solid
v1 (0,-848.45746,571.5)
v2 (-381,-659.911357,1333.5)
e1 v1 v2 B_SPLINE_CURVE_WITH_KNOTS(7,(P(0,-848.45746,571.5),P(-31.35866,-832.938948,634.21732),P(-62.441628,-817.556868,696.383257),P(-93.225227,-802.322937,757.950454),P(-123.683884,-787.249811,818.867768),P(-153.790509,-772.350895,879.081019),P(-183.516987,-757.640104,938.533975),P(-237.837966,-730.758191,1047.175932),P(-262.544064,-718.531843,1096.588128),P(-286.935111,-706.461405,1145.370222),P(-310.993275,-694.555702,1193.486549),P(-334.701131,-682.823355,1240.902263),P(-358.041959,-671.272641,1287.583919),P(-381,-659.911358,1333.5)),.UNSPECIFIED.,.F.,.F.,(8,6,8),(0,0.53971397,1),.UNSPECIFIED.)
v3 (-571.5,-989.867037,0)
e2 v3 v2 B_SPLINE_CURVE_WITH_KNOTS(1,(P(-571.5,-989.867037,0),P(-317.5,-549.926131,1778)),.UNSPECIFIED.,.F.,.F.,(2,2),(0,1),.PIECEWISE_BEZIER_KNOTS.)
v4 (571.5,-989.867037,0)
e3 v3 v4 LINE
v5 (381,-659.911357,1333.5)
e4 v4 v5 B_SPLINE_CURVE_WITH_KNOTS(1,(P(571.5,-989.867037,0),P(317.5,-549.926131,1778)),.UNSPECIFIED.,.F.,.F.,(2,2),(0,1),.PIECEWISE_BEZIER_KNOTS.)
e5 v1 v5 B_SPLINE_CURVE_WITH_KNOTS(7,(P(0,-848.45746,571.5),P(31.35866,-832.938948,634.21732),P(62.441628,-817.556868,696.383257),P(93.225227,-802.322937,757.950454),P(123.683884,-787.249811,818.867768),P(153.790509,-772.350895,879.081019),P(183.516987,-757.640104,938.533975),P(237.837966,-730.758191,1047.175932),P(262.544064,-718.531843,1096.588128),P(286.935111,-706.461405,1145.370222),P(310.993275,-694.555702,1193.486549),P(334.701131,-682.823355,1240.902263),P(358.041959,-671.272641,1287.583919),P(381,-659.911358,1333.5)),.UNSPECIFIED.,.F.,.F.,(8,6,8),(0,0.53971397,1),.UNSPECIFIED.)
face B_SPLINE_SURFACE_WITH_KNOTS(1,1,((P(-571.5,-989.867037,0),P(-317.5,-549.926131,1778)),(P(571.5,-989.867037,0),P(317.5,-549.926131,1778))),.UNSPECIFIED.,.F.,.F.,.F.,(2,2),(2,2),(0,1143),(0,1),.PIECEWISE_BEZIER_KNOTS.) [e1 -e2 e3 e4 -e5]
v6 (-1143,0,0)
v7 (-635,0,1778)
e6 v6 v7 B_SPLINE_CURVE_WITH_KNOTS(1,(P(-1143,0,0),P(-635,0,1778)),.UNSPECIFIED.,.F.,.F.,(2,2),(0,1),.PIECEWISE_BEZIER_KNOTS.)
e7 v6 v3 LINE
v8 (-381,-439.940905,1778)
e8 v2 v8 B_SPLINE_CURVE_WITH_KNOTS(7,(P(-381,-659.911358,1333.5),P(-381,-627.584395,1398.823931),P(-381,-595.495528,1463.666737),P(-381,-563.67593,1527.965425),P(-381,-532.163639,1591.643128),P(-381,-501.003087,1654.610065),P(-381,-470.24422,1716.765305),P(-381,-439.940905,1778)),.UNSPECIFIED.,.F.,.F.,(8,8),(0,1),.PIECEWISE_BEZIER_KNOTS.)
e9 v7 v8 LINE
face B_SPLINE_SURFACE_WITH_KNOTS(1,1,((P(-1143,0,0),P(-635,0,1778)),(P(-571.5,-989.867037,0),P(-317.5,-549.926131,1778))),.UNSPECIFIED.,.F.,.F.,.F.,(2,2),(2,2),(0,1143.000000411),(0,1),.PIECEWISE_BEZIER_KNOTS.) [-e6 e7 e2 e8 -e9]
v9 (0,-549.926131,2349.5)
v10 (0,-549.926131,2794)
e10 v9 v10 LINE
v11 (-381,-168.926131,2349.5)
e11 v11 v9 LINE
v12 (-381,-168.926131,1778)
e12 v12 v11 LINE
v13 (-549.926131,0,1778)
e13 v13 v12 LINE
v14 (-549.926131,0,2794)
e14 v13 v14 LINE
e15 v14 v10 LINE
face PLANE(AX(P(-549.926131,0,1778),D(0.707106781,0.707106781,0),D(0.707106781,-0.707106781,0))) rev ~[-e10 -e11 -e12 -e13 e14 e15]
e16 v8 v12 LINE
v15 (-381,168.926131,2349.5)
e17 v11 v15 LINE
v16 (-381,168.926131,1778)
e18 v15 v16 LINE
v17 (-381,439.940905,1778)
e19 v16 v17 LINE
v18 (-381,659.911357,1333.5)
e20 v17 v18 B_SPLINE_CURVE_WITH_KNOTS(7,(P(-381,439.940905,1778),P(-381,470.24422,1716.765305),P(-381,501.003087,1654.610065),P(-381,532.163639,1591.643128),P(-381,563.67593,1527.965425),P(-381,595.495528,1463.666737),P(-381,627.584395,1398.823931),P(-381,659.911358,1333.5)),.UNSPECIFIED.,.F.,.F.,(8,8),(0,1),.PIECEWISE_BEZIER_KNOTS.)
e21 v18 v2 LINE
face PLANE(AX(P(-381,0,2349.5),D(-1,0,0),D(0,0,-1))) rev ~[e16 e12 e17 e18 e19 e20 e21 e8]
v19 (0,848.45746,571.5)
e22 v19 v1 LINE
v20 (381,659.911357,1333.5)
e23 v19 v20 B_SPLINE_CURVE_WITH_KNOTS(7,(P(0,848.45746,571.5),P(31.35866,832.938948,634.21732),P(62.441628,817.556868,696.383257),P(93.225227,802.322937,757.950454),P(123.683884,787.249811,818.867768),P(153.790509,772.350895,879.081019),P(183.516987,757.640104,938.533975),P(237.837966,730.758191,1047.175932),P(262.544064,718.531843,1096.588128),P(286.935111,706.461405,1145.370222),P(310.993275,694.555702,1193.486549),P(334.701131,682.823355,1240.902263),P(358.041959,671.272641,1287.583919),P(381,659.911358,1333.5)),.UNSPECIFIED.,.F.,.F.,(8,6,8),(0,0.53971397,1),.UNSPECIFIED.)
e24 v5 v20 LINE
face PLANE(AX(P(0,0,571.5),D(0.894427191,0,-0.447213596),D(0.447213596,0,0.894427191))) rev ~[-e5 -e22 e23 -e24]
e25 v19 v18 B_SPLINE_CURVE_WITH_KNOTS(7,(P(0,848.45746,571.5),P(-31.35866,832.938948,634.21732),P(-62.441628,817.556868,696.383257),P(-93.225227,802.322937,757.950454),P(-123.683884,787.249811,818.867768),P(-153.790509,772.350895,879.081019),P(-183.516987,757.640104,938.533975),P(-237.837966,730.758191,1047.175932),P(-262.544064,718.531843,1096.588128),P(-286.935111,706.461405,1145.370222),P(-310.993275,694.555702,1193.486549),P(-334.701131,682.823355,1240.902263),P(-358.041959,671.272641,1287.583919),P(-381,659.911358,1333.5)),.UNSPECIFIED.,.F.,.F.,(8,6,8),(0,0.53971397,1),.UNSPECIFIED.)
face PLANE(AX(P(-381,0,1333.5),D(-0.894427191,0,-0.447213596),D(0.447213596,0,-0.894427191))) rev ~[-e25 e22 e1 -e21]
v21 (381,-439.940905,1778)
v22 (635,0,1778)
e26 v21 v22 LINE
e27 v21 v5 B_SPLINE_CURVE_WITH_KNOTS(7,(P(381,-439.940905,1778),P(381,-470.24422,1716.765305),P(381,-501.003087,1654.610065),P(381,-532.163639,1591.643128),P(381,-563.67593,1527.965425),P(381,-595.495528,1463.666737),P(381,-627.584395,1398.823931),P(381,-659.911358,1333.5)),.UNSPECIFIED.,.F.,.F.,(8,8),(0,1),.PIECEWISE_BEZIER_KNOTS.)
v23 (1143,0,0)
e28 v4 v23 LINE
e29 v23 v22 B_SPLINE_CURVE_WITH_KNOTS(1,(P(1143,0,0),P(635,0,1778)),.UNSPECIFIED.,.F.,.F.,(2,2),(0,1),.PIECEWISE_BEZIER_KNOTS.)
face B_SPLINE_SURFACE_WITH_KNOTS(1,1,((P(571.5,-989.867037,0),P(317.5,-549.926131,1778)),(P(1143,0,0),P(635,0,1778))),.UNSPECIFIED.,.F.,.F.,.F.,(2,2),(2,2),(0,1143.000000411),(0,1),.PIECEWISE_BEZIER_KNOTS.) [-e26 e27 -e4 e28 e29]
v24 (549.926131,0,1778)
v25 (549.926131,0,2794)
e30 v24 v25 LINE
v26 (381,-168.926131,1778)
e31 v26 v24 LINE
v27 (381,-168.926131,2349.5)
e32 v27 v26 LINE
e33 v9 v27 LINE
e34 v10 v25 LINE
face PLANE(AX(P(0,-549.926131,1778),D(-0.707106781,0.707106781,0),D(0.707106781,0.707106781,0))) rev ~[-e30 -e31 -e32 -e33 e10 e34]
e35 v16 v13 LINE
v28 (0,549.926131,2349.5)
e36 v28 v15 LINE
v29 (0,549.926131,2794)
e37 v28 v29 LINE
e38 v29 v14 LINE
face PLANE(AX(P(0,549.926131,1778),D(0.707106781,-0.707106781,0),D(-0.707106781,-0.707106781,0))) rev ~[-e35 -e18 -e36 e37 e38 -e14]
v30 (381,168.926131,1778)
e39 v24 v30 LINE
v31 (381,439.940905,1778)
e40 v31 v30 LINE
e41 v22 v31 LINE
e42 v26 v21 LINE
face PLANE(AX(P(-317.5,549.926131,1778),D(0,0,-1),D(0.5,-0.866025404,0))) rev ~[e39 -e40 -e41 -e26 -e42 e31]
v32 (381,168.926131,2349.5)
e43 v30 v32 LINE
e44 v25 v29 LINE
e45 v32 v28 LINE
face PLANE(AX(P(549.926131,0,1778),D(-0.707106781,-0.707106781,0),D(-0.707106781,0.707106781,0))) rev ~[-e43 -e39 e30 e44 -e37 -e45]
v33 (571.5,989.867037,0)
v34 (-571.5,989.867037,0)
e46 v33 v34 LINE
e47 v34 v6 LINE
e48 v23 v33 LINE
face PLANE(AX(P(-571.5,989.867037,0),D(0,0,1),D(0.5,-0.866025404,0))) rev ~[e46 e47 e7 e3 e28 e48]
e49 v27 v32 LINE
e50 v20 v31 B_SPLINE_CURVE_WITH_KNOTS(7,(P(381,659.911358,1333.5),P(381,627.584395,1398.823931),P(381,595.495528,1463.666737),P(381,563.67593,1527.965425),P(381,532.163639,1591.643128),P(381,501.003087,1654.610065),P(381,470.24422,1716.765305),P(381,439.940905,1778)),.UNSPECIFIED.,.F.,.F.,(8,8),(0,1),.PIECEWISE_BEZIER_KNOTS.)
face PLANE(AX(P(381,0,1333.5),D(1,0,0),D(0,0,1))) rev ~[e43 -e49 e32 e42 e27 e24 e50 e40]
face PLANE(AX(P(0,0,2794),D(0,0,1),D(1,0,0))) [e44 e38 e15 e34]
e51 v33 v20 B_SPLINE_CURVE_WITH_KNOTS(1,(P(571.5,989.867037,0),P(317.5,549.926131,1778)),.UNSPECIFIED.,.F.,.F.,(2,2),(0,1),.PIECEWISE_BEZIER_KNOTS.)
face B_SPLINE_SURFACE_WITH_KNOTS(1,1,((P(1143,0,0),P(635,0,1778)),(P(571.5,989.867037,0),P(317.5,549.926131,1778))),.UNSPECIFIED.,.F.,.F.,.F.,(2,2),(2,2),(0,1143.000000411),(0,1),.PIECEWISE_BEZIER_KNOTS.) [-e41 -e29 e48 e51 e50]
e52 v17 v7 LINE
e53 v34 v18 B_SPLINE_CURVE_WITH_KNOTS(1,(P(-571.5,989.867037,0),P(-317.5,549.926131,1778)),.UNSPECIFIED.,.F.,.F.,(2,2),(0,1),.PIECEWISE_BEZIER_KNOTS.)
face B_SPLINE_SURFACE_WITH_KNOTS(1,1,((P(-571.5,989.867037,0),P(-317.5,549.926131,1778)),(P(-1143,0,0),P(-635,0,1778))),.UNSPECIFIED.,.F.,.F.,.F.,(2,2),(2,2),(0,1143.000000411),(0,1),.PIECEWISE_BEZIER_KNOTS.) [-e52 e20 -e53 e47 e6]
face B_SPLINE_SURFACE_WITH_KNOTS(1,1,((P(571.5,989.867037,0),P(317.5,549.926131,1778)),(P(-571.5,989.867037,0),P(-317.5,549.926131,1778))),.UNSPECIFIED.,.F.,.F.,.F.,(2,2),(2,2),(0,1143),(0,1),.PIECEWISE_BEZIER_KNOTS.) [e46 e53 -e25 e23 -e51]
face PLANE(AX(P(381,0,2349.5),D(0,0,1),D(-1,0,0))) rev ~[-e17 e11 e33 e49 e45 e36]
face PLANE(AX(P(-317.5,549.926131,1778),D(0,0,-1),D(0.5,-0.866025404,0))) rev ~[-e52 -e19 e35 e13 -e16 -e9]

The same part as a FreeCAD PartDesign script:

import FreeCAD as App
import Part
import Sketcher

V = App.Vector
Q = App.Units.Quantity


def add_polygon(sketch, points):
    """Adds a closed chain of lines whose ends are joined by coincident constraints."""
    first, n = sketch.GeometryCount, len(points)
    for a, b in zip(points, points[1:] + points[:1]):
        sketch.addGeometry(Part.LineSegment(App.Vector(*a, 0), App.Vector(*b, 0)), False)
    for i in range(n):
        sketch.addConstraint(Sketcher.Constraint("Coincident", first + i, 2, first + (i + 1) % n, 1))

doc = App.newDocument("Part")
body = doc.addObject("PartDesign::Body", "Body")

# Sketch on XY plane
sketch1 = doc.addObject("Sketcher::SketchObject", "Sketch")
body.addObject(sketch1)
sketch1.AttachmentSupport = (doc.XY_Plane, [""])
sketch1.MapMode = "FlatFace"
add_polygon(sketch1, [(-572, 990), (-1143, 0), (-572, -990), (572, -990), (1143, 0), (572, 990)])  # lines 0-5
sketch1.addConstraint([
    Sketcher.Constraint("Horizontal", 2),
    Sketcher.Constraint("Horizontal", 5),
    Sketcher.Constraint("Symmetric", 0, 2, 3, 2, -1, 1),
    Sketcher.Constraint("Symmetric", 1, 2, 4, 2, -1, 1),
    Sketcher.Constraint("PointOnObject", 0, 2, -1),
    Sketcher.Constraint("Parallel", 0, 3),
    Sketcher.Constraint("Vertical", 2, 2, 4, 2),
    Sketcher.Constraint("DistanceX", 2, 1, 2, 2, Q("45 in")),
    Sketcher.Constraint("Distance", 0, Q("45 in")),
    Sketcher.Constraint("DistanceX", 0, 2, -1, 1, Q("45 in")),
])

# Sketch on XY plane
sketch2 = doc.addObject("Sketcher::SketchObject", "Sketch001")
body.addObject(sketch2)
sketch2.AttachmentSupport = (doc.XY_Plane, [""])
sketch2.MapMode = "FlatFace"
sketch2.AttachmentOffset = App.Placement(V(0, 0, 70 * 25.4), App.Rotation())
add_polygon(sketch2, [(318, -550), (635, 0), (318, 550), (-318, 550), (-635, 0), (-318, -550)])  # lines 0-5
sketch2.addConstraint([
    Sketcher.Constraint("Horizontal", 2),
    Sketcher.Constraint("Horizontal", 5),
    Sketcher.Constraint("Symmetric", 0, 2, 3, 2, -1, 1),
    Sketcher.Constraint("Symmetric", 1, 2, 4, 2, -1, 1),
    Sketcher.Constraint("PointOnObject", 0, 2, -1),
    Sketcher.Constraint("Parallel", 0, 3),
    Sketcher.Constraint("Vertical", 2, 2, 4, 2),
    Sketcher.Constraint("DistanceX", 2, 2, 2, 1, Q("25 in")),
    Sketcher.Constraint("Distance", 0, Q("25 in")),
    Sketcher.Constraint("DistanceX", -1, 1, 0, 2, Q("25 in")),
])

additiveloft = doc.addObject("PartDesign::AdditiveLoft", "AdditiveLoft")
body.addObject(additiveloft)
additiveloft.Profile = sketch1
additiveloft.Sections = [sketch2]

# Sketch on XY plane
sketch3 = doc.addObject("Sketcher::SketchObject", "Sketch002")
body.addObject(sketch3)
sketch3.AttachmentSupport = (doc.XY_Plane, [""])
sketch3.MapMode = "FlatFace"
sketch3.AttachmentOffset = App.Placement(V(0, 0, 70 * 25.4), App.Rotation())
add_polygon(sketch3, [(0, -550), (550, 0), (0, 550), (-550, 0)])  # lines 0-3
sketch3.addConstraint([
    Sketcher.Constraint("Symmetric", 0, 2, 2, 2, -1, 1),
    Sketcher.Constraint("Symmetric", 1, 2, 3, 2, -1, 1),
    Sketcher.Constraint("PointOnObject", 0, 2, -1),
    Sketcher.Constraint("PointOnObject", 1, 2, -2),
    Sketcher.Constraint("Perpendicular", 0, 1),
    Sketcher.Constraint("DistanceX", -1, 1, 0, 2, 549.926131),
])
pad1 = doc.addObject("PartDesign::Pad", "Pad")
body.addObject(pad1)
pad1.Profile = sketch3
pad1.Length = Q("40 in")

# Sketch on XZ plane
sketch4 = doc.addObject("Sketcher::SketchObject", "Sketch003")
body.addObject(sketch4)
sketch4.AttachmentSupport = (doc.XZ_Plane, [""])
sketch4.MapMode = "FlatFace"
add_polygon(sketch4, [(-381, 2350), (-381, 1334), (0, 572), (381, 1334), (381, 2350)])  # lines 0-4
sketch4.addConstraint([
    Sketcher.Constraint("Vertical", 0),
    Sketcher.Constraint("Vertical", 3),
    Sketcher.Constraint("Horizontal", 4),
    Sketcher.Constraint("Symmetric", 0, 2, 2, 2, -2),
    Sketcher.Constraint("PointOnObject", 1, 2, -2),
    Sketcher.Constraint("DistanceX", 4, 2, 4, 1, Q("30 in")),
    Sketcher.Constraint("DistanceY", 0, 2, 0, 1, Q("40 in")),
    Sketcher.Constraint("DistanceY", 1, 2, 0, 2, Q("30 in")),
    Sketcher.Constraint("DistanceY", -1, 1, 0, 2, Q("52.5 in")),
])
pocket1 = doc.addObject("PartDesign::Pocket", "Pocket")
body.addObject(pocket1)
pocket1.Profile = sketch4
pocket1.Length = Q("93.6 in")
pocket1.Midplane = True

doc.recompute()
